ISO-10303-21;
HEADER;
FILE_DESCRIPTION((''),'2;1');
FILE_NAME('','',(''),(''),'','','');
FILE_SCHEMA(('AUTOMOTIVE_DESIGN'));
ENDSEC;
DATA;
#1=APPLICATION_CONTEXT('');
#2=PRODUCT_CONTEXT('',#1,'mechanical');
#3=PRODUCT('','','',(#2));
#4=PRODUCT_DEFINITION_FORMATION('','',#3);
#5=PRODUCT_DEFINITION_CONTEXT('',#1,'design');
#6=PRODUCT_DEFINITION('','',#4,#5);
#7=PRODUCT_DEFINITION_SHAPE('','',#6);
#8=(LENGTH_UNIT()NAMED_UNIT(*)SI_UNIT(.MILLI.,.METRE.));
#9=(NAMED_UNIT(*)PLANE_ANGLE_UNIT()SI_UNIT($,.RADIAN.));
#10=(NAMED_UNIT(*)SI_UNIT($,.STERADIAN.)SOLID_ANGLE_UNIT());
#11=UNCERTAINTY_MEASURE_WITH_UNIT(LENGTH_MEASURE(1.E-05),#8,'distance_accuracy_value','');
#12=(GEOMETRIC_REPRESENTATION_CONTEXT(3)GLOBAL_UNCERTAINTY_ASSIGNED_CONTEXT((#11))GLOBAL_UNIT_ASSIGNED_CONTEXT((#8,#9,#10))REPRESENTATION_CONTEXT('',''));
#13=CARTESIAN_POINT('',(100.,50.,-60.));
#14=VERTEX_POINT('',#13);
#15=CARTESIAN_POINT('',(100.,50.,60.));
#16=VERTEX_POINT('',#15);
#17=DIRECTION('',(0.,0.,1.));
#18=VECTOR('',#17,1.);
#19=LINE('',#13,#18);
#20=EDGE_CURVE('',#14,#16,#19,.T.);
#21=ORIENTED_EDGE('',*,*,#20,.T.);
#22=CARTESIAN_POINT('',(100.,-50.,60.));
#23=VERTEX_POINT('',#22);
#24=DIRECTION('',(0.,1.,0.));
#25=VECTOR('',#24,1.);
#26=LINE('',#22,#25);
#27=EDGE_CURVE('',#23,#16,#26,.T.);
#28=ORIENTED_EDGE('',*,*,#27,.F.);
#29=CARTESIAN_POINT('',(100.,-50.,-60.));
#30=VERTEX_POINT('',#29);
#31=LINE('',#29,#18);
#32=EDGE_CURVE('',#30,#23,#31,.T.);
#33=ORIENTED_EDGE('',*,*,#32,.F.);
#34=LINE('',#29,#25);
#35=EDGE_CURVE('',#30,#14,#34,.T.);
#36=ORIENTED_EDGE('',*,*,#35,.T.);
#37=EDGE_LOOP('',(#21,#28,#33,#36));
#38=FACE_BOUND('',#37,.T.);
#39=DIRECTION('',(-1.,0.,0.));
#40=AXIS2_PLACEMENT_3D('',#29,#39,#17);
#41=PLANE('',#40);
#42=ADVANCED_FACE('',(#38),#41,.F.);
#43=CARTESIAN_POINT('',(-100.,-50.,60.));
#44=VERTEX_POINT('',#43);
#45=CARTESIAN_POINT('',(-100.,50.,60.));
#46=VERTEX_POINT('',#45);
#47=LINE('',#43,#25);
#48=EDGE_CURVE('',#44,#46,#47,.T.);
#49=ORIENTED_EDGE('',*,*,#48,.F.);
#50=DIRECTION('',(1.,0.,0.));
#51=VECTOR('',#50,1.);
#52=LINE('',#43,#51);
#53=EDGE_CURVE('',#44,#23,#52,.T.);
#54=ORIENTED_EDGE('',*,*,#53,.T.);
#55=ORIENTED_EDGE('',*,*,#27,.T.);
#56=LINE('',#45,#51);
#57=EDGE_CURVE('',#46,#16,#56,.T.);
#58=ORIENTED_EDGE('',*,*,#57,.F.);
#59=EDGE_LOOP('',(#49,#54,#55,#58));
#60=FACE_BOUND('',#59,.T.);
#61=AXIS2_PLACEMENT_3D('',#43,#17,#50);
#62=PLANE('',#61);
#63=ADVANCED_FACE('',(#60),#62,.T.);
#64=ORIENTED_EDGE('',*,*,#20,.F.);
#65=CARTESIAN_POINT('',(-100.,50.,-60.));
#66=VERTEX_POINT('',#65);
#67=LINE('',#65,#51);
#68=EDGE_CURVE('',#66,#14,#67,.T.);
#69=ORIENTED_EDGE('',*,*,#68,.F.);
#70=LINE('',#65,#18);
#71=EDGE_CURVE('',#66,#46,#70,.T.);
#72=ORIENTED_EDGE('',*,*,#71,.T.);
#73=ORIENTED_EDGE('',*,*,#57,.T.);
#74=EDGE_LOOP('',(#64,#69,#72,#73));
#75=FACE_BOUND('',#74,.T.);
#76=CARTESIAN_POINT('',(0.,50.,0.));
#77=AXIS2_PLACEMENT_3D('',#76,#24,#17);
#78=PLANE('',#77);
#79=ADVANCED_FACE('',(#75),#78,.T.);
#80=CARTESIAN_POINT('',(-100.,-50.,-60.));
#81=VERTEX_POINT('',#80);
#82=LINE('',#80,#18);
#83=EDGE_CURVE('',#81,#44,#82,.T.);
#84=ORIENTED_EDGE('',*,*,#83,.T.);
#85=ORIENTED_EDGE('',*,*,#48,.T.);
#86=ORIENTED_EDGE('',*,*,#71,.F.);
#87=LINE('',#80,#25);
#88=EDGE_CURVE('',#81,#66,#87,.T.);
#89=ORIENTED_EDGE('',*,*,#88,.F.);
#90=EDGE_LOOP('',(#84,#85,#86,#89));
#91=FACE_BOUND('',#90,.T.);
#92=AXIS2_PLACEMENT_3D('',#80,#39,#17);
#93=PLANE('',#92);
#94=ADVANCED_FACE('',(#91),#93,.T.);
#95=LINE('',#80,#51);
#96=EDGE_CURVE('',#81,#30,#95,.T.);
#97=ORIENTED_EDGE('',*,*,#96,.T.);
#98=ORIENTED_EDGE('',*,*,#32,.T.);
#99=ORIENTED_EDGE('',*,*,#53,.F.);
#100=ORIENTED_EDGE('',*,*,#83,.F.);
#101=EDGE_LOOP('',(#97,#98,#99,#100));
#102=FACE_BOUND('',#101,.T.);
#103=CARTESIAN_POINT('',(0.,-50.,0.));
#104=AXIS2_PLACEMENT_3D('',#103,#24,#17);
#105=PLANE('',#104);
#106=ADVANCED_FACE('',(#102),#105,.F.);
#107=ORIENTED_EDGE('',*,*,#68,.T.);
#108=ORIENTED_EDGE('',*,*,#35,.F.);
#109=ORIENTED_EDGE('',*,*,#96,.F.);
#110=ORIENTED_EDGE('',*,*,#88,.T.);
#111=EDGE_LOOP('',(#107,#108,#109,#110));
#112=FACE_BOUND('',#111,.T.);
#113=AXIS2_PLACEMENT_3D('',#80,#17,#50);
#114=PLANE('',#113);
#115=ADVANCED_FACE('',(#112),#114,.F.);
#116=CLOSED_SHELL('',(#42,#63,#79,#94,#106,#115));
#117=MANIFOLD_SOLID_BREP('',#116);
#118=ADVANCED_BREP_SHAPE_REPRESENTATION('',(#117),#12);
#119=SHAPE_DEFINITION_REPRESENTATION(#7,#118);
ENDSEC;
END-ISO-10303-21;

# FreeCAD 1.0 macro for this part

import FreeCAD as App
import Part
import Sketcher

V = App.Vector
Q = App.Units.Quantity

doc = App.newDocument("Part")
body = doc.addObject("PartDesign::Body", "Body")

sketch1 = body.newObject("Sketcher::SketchObject", "Sketch")
sketch1.AttachmentSupport = (doc.getObject("XZ_Plane"), [""])
sketch1.MapMode = "FlatFace"
sketch1.addGeometry(Part.LineSegment(V(-100, -60, 0), V(-100, 60, 0)), False)
sketch1.addGeometry(Part.LineSegment(V(-100, 60, 0), V(100, 60, 0)), False)
sketch1.addGeometry(Part.LineSegment(V(100, 60, 0), V(100, -60, 0)), False)
sketch1.addGeometry(Part.LineSegment(V(100, -60, 0), V(-100, -60, 0)), False)
sketch1.addConstraint(Sketcher.Constraint("Coincident", 0, 2, 1, 1))
sketch1.addConstraint(Sketcher.Constraint("Coincident", 1, 2, 2, 1))
sketch1.addConstraint(Sketcher.Constraint("Coincident", 2, 2, 3, 1))
sketch1.addConstraint(Sketcher.Constraint("Coincident", 3, 2, 0, 1))
sketch1.addConstraint(Sketcher.Constraint("Vertical", 0))
sketch1.addConstraint(Sketcher.Constraint("Horizontal", 1))
sketch1.addConstraint(Sketcher.Constraint("Vertical", 2))
sketch1.addConstraint(Sketcher.Constraint("Horizontal", 3))
sketch1.addConstraint(Sketcher.Constraint("Symmetric", 0, 2, 2, 2, -1, 1))
sketch1.addConstraint(Sketcher.Constraint("DistanceX", 1, 1, 1, 2, Q("200 mm")))
sketch1.addConstraint(Sketcher.Constraint("DistanceY", 0, 1, 0, 2, Q("120 mm")))
pad1 = body.newObject("PartDesign::Pad", "Pad")
pad1.Profile = sketch1
pad1.Type = "TwoLengths"
pad1.Length = 50
pad1.Length2 = 50
pad1.Reversed = True

doc.recompute()
